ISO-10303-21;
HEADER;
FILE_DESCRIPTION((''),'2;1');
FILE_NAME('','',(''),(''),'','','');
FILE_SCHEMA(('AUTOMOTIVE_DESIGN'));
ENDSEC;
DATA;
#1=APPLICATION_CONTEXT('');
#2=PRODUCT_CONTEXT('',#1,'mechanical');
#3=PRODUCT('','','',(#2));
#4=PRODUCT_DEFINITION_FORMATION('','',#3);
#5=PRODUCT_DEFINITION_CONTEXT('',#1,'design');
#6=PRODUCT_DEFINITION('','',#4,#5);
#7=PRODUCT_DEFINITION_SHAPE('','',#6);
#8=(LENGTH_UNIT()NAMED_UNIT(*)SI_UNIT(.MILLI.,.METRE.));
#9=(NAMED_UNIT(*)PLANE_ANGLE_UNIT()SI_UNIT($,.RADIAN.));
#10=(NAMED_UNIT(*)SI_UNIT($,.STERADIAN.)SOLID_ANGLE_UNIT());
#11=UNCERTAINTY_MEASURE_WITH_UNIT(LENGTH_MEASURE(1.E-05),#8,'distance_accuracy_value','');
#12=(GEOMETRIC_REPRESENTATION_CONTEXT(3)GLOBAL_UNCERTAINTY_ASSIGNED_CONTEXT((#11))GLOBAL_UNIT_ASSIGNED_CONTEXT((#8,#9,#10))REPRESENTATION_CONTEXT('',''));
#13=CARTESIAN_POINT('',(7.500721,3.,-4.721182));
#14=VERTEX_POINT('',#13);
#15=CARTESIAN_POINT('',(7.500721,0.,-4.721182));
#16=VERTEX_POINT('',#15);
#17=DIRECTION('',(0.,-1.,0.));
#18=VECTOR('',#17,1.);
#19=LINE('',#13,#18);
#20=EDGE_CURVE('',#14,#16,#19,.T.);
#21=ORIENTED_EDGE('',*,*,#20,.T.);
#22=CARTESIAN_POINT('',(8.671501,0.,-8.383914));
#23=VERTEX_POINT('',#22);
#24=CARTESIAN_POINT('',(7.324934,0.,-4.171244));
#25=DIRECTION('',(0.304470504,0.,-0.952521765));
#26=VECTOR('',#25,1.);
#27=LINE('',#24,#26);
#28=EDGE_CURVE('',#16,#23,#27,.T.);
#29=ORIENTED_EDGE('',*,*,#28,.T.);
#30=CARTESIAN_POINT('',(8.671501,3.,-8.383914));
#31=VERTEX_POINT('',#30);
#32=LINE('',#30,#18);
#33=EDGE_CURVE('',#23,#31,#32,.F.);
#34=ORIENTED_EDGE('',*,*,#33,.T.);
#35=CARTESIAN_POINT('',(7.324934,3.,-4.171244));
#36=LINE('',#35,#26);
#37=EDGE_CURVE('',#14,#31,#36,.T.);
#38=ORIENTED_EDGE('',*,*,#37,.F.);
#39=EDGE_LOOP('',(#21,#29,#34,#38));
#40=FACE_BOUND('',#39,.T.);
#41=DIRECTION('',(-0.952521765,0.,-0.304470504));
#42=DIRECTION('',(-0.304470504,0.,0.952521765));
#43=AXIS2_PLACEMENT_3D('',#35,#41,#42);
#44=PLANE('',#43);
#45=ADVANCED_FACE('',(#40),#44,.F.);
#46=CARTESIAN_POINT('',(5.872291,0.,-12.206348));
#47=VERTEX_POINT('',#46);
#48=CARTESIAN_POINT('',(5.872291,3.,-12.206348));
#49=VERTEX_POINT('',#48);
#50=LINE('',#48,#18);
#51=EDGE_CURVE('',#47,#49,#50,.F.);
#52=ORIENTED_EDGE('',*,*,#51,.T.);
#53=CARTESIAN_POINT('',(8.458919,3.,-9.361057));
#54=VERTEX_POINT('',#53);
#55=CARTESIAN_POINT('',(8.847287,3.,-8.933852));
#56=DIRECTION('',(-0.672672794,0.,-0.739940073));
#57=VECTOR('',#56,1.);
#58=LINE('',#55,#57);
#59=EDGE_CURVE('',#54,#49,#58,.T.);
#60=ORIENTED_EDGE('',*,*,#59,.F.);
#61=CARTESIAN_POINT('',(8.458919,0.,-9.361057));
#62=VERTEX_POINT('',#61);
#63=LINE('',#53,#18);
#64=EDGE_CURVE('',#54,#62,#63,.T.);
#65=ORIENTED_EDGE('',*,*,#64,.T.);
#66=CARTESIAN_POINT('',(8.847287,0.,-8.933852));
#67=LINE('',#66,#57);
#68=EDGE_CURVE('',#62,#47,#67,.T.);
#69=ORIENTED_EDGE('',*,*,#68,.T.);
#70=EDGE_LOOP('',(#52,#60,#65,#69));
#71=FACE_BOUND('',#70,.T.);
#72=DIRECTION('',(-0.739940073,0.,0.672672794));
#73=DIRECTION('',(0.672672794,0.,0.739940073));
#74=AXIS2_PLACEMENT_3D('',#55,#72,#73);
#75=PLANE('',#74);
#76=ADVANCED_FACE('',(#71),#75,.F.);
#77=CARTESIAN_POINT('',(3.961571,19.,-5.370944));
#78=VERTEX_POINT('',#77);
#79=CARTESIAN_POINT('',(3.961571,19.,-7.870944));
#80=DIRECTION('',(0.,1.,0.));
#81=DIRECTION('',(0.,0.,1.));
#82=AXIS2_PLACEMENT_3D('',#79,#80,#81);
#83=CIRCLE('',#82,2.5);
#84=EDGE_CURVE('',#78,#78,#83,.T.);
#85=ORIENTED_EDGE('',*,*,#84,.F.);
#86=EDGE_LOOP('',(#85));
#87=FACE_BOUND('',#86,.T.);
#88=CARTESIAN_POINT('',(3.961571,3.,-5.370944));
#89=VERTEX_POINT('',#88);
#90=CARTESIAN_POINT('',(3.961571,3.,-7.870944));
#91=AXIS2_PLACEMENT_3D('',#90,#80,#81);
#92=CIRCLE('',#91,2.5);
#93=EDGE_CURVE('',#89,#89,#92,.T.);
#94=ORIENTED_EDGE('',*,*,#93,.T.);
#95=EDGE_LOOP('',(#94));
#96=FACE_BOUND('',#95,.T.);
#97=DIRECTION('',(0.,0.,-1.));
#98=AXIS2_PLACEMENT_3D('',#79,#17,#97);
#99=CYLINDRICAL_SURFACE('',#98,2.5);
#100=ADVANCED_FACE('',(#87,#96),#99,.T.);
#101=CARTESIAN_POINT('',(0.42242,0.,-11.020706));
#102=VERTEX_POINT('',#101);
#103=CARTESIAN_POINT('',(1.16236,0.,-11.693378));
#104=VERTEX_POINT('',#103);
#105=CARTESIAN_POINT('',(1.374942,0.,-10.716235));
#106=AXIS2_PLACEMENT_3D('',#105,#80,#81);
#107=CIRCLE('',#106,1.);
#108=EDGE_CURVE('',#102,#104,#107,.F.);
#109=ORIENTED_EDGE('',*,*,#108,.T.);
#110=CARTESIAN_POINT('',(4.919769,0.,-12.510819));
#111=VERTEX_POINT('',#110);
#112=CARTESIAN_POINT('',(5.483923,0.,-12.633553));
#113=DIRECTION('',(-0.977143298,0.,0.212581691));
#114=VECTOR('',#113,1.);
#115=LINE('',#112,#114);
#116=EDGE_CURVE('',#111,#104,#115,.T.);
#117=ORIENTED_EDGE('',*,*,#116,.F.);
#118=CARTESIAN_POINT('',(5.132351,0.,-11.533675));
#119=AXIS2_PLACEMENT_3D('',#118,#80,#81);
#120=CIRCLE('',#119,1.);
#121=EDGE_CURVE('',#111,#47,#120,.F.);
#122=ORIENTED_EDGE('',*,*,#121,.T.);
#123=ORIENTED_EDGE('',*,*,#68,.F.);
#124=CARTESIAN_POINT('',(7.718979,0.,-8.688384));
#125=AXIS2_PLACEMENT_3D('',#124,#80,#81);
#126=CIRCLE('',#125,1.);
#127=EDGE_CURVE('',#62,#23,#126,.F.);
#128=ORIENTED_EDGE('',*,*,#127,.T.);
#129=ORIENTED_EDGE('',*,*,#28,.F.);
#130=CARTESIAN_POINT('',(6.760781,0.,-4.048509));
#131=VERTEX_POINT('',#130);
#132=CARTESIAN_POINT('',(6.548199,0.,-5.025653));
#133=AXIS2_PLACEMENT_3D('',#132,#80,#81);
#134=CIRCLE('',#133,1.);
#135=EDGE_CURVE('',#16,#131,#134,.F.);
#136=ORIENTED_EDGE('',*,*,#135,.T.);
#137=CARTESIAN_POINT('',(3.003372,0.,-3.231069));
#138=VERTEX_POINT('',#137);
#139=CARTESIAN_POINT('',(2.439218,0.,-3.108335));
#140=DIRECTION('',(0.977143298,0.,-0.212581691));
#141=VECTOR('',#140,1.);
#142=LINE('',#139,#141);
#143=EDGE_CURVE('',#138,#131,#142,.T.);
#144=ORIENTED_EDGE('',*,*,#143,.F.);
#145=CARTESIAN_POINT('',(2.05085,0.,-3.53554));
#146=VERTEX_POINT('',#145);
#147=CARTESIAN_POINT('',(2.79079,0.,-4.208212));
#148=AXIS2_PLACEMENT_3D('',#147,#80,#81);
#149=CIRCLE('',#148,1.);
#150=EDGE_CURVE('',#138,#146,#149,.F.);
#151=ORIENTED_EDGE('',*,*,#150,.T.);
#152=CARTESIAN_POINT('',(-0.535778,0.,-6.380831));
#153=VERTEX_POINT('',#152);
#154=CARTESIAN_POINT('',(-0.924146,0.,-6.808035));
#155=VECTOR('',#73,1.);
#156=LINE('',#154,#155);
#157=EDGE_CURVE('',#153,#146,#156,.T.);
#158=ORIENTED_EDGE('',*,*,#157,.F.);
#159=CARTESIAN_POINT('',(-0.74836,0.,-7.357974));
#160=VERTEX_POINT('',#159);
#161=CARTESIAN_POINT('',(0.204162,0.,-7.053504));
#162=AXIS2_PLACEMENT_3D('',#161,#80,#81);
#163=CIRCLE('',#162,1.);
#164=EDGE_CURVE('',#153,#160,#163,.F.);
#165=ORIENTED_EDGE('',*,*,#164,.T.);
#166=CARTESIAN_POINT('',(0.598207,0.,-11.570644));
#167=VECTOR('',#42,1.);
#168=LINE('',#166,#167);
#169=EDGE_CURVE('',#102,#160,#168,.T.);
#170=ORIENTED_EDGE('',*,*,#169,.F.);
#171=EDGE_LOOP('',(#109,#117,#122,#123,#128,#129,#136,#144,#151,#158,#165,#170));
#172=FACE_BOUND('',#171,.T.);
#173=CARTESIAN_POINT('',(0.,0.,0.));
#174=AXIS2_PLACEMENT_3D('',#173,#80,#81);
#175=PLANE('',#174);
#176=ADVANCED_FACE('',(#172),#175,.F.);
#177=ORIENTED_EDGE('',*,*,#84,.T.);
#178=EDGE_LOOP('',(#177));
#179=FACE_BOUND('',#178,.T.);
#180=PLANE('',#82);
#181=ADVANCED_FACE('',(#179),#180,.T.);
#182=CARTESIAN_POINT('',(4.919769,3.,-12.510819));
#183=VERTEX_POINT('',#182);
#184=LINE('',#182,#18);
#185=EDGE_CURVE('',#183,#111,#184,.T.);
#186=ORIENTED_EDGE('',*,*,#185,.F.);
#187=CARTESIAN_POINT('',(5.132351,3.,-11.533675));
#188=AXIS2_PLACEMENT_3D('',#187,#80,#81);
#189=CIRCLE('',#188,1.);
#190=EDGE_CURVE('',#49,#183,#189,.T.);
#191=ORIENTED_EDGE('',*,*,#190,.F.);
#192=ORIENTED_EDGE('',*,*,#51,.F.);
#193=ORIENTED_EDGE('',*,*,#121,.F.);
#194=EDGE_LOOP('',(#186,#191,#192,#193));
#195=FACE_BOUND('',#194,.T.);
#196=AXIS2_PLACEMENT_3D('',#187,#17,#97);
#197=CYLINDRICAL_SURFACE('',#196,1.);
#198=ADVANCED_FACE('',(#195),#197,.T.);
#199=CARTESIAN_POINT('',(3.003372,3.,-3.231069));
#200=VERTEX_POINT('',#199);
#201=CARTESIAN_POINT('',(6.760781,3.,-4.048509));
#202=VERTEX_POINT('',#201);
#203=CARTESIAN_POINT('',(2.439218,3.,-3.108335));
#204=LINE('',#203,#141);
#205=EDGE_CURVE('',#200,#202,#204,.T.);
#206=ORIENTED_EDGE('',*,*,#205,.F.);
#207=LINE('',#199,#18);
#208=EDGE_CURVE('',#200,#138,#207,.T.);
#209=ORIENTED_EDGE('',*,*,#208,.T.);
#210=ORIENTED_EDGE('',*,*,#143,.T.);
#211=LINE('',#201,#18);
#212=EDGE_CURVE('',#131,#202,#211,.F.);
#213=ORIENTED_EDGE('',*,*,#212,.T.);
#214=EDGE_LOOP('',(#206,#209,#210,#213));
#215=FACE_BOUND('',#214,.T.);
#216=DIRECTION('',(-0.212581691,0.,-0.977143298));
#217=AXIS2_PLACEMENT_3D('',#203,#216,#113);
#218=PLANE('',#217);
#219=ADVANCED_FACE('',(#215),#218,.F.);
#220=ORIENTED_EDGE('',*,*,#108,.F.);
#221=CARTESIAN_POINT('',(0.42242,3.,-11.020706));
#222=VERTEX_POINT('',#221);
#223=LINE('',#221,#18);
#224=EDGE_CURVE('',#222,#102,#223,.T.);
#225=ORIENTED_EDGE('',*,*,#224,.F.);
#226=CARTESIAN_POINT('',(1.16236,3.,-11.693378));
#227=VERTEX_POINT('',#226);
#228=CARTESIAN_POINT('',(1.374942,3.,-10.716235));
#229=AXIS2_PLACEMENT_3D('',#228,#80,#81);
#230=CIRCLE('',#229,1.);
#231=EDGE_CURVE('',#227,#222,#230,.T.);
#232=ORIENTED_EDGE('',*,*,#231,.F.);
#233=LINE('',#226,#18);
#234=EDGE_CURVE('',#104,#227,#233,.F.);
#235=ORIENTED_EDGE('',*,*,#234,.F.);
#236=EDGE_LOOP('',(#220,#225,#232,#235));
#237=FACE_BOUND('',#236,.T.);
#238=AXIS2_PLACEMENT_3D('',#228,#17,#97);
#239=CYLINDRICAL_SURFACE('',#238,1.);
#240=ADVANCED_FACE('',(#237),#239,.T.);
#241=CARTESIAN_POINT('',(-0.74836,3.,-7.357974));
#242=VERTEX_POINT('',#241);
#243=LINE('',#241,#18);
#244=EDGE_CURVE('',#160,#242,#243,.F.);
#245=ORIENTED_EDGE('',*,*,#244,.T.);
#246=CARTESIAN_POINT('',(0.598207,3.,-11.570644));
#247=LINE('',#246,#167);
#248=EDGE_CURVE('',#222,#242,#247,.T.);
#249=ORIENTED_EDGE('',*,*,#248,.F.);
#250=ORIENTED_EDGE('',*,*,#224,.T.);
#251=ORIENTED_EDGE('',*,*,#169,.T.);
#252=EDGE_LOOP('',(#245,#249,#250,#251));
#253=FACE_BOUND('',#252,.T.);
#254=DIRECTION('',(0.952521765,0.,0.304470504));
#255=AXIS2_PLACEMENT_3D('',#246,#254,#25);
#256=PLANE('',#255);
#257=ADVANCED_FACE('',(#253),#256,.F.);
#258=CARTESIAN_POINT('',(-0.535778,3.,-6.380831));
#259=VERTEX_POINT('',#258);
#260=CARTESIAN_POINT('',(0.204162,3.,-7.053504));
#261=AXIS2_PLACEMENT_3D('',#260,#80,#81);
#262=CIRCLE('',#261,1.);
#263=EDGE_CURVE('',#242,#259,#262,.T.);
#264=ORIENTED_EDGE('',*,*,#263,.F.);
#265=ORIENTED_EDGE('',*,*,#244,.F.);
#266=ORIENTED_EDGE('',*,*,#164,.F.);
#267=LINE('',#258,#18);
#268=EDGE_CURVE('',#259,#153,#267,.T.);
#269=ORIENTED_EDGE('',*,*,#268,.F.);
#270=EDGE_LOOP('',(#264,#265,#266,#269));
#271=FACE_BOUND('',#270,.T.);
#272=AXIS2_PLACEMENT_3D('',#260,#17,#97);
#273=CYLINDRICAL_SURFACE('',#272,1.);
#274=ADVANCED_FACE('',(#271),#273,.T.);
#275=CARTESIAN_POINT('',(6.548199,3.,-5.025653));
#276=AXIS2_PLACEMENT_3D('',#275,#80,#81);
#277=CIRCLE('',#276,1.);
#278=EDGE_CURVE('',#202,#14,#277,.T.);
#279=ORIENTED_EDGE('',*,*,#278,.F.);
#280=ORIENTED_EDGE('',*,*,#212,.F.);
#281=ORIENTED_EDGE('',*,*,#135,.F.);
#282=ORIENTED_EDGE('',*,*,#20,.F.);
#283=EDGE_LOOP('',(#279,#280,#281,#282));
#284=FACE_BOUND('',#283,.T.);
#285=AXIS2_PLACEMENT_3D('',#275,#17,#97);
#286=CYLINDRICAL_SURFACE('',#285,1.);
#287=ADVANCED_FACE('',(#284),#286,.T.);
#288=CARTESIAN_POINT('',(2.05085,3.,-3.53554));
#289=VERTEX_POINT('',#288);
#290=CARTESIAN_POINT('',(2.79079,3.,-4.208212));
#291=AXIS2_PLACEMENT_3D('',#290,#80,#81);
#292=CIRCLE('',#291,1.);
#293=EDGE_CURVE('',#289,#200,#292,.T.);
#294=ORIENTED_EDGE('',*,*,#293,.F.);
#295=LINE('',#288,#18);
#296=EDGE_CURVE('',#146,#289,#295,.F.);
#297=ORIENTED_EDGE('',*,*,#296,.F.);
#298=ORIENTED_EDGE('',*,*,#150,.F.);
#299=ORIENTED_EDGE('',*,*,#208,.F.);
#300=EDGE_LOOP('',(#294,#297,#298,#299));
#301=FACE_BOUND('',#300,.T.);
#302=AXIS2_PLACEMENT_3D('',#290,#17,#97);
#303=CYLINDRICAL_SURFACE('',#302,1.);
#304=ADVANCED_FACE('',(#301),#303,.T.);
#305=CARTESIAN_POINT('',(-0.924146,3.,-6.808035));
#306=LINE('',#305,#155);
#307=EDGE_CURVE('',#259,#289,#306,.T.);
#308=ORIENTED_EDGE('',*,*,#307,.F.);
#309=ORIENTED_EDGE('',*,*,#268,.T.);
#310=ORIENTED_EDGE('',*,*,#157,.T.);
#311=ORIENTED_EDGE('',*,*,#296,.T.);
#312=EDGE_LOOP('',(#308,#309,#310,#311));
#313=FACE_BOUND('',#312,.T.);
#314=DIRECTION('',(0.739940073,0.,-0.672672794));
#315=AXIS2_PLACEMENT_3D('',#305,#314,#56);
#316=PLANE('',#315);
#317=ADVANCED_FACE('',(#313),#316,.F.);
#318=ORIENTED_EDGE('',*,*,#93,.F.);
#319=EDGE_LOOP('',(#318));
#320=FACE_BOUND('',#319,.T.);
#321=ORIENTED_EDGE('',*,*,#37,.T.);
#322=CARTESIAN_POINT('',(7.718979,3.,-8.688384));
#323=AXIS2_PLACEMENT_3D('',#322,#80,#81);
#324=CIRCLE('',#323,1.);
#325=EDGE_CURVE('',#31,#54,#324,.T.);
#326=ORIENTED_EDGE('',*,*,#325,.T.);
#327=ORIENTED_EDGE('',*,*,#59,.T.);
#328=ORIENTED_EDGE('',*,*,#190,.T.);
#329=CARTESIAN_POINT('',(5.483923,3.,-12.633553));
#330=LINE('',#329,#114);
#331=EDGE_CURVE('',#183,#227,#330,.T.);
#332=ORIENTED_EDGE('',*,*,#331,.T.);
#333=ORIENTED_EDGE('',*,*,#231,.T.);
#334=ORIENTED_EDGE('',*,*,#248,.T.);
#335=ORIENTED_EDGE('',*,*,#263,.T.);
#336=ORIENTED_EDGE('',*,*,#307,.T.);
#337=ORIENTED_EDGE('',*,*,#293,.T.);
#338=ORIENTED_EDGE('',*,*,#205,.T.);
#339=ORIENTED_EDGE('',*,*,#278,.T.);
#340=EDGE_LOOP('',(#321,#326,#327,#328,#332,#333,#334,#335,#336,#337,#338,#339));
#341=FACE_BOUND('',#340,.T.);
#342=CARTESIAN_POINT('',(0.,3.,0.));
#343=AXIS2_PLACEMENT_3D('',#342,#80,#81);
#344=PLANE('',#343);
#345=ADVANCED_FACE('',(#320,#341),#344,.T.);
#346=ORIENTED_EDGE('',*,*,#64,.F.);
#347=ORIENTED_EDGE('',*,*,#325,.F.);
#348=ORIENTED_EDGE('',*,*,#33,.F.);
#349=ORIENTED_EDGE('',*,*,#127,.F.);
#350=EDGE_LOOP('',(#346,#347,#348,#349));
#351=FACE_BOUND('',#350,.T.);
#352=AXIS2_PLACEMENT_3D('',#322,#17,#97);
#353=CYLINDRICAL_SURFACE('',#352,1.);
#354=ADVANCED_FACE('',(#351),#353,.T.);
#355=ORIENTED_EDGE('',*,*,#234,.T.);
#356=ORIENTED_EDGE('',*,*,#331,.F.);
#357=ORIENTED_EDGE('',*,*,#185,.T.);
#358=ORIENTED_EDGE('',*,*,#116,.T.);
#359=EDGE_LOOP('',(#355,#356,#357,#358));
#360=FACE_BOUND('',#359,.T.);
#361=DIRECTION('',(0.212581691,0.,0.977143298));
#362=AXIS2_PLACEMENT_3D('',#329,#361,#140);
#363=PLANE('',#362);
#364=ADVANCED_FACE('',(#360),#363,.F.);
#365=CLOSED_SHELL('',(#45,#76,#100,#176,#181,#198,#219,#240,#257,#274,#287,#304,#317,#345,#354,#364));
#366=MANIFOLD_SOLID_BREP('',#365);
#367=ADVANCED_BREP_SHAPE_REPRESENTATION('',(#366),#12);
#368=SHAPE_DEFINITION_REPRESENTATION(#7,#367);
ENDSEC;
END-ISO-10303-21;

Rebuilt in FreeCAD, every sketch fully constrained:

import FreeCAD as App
import Part
import Sketcher
from FreeCAD import Vector
Q = App.Units.Quantity


def edges_at(feature, points):
    """Names of the edges that pass closest to the given points."""
    edges = feature.Shape.Edges
    near = lambda p: min(range(len(edges)), key=lambda i: edges[i].distToShape(Part.Vertex(*p))[0])
    return sorted({f"Edge{near(p) + 1}" for p in points})

doc = App.newDocument("Part")
params = doc.addObject("Spreadsheet::Sheet", "Params")
for row, (alias, value) in enumerate([
    ("sketch1_length", "5 mm"),
    ("pad1_length", "3 mm"),
    ("sketch2_diameter", "5 mm"),
    ("pad2_length", "16 mm"),
    ("fillet_radius", "1 mm"),
], start=1):
    params.set(f"A{row}", alias)
    params.set(f"B{row}", "=" + value)
    params.setAlias(f"B{row}", alias)

body = doc.addObject("PartDesign::Body", "Body")

# Sketch on XZ plane
sketch1 = body.newObject("Sketcher::SketchObject", "Sketch")
sketch1.AttachmentSupport = (doc.getObject("XZ_Plane"), [""])
sketch1.MapMode = "FlatFace"
sketch1.addGeometry(Part.LineSegment(Vector(7.3, -4.2, 0), Vector(8.8, -8.9, 0)), False)
sketch1.addGeometry(Part.LineSegment(Vector(8.8, -8.9, 0), Vector(5.5, -12.6, 0)), False)
sketch1.addGeometry(Part.LineSegment(Vector(5.5, -12.6, 0), Vector(0.6, -11.6, 0)), False)
sketch1.addGeometry(Part.LineSegment(Vector(0.6, -11.6, 0), Vector(-0.9, -6.8, 0)), False)
sketch1.addGeometry(Part.LineSegment(Vector(-0.9, -6.8, 0), Vector(2.4, -3.1, 0)), False)
sketch1.addGeometry(Part.LineSegment(Vector(2.4, -3.1, 0), Vector(7.3, -4.2, 0)), False)
sketch1.addConstraint(Sketcher.Constraint("Coincident", 0, 2, 1, 1))
sketch1.addConstraint(Sketcher.Constraint("Coincident", 1, 2, 2, 1))
sketch1.addConstraint(Sketcher.Constraint("Coincident", 2, 2, 3, 1))
sketch1.addConstraint(Sketcher.Constraint("Coincident", 3, 2, 4, 1))
sketch1.addConstraint(Sketcher.Constraint("Coincident", 4, 2, 5, 1))
sketch1.addConstraint(Sketcher.Constraint("Coincident", 5, 2, 0, 1))
sketch1.addConstraint(Sketcher.Constraint("Parallel", 0, 3))
sketch1.addConstraint(Sketcher.Constraint("Parallel", 1, 4))
sketch1.addConstraint(Sketcher.Constraint("Parallel", 2, 5))
sketch1.addConstraint(Sketcher.Constraint("Equal", 0, 1))
sketch1.addConstraint(Sketcher.Constraint("Equal", 1, 2))
sketch1.addConstraint(Sketcher.Constraint("Equal", 2, 3))
sketch1.addConstraint(Sketcher.Constraint("Distance", 0, Q("5 mm")))
sketch1.addConstraint(Sketcher.Constraint("DistanceY", 1, 2, 0, 2, Q("3.6997 mm")))
sketch1.addConstraint(Sketcher.Constraint("DistanceY", 2, 2, 5, 2, Q("7.399401 mm")))
sketch1.addConstraint(Sketcher.Constraint("DistanceX", -1, 1, 4, 2, Q("2.439218 mm")))
sketch1.addConstraint(Sketcher.Constraint("DistanceY", 1, 2, 2, 2, Q("1.062908 mm")))
sketch1.addConstraint(Sketcher.Constraint("DistanceY", 0, 2, -1, 1, Q("8.933852 mm")))
sketch1.setExpression("Constraints[12]", "Params.sketch1_length")
pad1 = body.newObject("PartDesign::Pad", "Pad")
pad1.Profile = sketch1
pad1.setExpression("Length", "Params.pad1_length")
pad1.Reversed = True

# Sketch on XZ plane
sketch2 = body.newObject("Sketcher::SketchObject", "Sketch001")
sketch2.AttachmentSupport = (doc.getObject("XZ_Plane"), [""])
sketch2.MapMode = "FlatFace"
sketch2.AttachmentOffset = App.Placement(Vector(0, 0, -3), App.Rotation())
sketch2.addGeometry(Part.Circle(Vector(4, -7.9, 0), Vector(0, 0, 1), 2.5), False)
sketch2.addConstraint(Sketcher.Constraint("Diameter", 0, Q("5 mm")))
sketch2.addConstraint(Sketcher.Constraint("DistanceX", -1, 1, 0, 3, Q("3.961571 mm")))
sketch2.addConstraint(Sketcher.Constraint("DistanceY", 0, 3, -1, 1, Q("7.870944 mm")))
sketch2.setExpression("Constraints[0]", "Params.sketch2_diameter")
pad2 = body.newObject("PartDesign::Pad", "Pad001")
pad2.Profile = sketch2
pad2.setExpression("Length", "Params.pad2_length")
pad2.Reversed = True
doc.recompute()

fillet = body.newObject("PartDesign::Fillet", "Fillet")
fillet.Base = (pad2, edges_at(pad2, [
    (8.847, 1.5, -8.934),
    (7.325, 1.5, -4.171),
    (2.439, 1.5, -3.108),
    (-0.924, 1.5, -6.808),
    (0.598, 1.5, -11.571),
    (5.484, 1.5, -12.634),
]))
fillet.setExpression("Radius", "Params.fillet_radius")

doc.recompute()
